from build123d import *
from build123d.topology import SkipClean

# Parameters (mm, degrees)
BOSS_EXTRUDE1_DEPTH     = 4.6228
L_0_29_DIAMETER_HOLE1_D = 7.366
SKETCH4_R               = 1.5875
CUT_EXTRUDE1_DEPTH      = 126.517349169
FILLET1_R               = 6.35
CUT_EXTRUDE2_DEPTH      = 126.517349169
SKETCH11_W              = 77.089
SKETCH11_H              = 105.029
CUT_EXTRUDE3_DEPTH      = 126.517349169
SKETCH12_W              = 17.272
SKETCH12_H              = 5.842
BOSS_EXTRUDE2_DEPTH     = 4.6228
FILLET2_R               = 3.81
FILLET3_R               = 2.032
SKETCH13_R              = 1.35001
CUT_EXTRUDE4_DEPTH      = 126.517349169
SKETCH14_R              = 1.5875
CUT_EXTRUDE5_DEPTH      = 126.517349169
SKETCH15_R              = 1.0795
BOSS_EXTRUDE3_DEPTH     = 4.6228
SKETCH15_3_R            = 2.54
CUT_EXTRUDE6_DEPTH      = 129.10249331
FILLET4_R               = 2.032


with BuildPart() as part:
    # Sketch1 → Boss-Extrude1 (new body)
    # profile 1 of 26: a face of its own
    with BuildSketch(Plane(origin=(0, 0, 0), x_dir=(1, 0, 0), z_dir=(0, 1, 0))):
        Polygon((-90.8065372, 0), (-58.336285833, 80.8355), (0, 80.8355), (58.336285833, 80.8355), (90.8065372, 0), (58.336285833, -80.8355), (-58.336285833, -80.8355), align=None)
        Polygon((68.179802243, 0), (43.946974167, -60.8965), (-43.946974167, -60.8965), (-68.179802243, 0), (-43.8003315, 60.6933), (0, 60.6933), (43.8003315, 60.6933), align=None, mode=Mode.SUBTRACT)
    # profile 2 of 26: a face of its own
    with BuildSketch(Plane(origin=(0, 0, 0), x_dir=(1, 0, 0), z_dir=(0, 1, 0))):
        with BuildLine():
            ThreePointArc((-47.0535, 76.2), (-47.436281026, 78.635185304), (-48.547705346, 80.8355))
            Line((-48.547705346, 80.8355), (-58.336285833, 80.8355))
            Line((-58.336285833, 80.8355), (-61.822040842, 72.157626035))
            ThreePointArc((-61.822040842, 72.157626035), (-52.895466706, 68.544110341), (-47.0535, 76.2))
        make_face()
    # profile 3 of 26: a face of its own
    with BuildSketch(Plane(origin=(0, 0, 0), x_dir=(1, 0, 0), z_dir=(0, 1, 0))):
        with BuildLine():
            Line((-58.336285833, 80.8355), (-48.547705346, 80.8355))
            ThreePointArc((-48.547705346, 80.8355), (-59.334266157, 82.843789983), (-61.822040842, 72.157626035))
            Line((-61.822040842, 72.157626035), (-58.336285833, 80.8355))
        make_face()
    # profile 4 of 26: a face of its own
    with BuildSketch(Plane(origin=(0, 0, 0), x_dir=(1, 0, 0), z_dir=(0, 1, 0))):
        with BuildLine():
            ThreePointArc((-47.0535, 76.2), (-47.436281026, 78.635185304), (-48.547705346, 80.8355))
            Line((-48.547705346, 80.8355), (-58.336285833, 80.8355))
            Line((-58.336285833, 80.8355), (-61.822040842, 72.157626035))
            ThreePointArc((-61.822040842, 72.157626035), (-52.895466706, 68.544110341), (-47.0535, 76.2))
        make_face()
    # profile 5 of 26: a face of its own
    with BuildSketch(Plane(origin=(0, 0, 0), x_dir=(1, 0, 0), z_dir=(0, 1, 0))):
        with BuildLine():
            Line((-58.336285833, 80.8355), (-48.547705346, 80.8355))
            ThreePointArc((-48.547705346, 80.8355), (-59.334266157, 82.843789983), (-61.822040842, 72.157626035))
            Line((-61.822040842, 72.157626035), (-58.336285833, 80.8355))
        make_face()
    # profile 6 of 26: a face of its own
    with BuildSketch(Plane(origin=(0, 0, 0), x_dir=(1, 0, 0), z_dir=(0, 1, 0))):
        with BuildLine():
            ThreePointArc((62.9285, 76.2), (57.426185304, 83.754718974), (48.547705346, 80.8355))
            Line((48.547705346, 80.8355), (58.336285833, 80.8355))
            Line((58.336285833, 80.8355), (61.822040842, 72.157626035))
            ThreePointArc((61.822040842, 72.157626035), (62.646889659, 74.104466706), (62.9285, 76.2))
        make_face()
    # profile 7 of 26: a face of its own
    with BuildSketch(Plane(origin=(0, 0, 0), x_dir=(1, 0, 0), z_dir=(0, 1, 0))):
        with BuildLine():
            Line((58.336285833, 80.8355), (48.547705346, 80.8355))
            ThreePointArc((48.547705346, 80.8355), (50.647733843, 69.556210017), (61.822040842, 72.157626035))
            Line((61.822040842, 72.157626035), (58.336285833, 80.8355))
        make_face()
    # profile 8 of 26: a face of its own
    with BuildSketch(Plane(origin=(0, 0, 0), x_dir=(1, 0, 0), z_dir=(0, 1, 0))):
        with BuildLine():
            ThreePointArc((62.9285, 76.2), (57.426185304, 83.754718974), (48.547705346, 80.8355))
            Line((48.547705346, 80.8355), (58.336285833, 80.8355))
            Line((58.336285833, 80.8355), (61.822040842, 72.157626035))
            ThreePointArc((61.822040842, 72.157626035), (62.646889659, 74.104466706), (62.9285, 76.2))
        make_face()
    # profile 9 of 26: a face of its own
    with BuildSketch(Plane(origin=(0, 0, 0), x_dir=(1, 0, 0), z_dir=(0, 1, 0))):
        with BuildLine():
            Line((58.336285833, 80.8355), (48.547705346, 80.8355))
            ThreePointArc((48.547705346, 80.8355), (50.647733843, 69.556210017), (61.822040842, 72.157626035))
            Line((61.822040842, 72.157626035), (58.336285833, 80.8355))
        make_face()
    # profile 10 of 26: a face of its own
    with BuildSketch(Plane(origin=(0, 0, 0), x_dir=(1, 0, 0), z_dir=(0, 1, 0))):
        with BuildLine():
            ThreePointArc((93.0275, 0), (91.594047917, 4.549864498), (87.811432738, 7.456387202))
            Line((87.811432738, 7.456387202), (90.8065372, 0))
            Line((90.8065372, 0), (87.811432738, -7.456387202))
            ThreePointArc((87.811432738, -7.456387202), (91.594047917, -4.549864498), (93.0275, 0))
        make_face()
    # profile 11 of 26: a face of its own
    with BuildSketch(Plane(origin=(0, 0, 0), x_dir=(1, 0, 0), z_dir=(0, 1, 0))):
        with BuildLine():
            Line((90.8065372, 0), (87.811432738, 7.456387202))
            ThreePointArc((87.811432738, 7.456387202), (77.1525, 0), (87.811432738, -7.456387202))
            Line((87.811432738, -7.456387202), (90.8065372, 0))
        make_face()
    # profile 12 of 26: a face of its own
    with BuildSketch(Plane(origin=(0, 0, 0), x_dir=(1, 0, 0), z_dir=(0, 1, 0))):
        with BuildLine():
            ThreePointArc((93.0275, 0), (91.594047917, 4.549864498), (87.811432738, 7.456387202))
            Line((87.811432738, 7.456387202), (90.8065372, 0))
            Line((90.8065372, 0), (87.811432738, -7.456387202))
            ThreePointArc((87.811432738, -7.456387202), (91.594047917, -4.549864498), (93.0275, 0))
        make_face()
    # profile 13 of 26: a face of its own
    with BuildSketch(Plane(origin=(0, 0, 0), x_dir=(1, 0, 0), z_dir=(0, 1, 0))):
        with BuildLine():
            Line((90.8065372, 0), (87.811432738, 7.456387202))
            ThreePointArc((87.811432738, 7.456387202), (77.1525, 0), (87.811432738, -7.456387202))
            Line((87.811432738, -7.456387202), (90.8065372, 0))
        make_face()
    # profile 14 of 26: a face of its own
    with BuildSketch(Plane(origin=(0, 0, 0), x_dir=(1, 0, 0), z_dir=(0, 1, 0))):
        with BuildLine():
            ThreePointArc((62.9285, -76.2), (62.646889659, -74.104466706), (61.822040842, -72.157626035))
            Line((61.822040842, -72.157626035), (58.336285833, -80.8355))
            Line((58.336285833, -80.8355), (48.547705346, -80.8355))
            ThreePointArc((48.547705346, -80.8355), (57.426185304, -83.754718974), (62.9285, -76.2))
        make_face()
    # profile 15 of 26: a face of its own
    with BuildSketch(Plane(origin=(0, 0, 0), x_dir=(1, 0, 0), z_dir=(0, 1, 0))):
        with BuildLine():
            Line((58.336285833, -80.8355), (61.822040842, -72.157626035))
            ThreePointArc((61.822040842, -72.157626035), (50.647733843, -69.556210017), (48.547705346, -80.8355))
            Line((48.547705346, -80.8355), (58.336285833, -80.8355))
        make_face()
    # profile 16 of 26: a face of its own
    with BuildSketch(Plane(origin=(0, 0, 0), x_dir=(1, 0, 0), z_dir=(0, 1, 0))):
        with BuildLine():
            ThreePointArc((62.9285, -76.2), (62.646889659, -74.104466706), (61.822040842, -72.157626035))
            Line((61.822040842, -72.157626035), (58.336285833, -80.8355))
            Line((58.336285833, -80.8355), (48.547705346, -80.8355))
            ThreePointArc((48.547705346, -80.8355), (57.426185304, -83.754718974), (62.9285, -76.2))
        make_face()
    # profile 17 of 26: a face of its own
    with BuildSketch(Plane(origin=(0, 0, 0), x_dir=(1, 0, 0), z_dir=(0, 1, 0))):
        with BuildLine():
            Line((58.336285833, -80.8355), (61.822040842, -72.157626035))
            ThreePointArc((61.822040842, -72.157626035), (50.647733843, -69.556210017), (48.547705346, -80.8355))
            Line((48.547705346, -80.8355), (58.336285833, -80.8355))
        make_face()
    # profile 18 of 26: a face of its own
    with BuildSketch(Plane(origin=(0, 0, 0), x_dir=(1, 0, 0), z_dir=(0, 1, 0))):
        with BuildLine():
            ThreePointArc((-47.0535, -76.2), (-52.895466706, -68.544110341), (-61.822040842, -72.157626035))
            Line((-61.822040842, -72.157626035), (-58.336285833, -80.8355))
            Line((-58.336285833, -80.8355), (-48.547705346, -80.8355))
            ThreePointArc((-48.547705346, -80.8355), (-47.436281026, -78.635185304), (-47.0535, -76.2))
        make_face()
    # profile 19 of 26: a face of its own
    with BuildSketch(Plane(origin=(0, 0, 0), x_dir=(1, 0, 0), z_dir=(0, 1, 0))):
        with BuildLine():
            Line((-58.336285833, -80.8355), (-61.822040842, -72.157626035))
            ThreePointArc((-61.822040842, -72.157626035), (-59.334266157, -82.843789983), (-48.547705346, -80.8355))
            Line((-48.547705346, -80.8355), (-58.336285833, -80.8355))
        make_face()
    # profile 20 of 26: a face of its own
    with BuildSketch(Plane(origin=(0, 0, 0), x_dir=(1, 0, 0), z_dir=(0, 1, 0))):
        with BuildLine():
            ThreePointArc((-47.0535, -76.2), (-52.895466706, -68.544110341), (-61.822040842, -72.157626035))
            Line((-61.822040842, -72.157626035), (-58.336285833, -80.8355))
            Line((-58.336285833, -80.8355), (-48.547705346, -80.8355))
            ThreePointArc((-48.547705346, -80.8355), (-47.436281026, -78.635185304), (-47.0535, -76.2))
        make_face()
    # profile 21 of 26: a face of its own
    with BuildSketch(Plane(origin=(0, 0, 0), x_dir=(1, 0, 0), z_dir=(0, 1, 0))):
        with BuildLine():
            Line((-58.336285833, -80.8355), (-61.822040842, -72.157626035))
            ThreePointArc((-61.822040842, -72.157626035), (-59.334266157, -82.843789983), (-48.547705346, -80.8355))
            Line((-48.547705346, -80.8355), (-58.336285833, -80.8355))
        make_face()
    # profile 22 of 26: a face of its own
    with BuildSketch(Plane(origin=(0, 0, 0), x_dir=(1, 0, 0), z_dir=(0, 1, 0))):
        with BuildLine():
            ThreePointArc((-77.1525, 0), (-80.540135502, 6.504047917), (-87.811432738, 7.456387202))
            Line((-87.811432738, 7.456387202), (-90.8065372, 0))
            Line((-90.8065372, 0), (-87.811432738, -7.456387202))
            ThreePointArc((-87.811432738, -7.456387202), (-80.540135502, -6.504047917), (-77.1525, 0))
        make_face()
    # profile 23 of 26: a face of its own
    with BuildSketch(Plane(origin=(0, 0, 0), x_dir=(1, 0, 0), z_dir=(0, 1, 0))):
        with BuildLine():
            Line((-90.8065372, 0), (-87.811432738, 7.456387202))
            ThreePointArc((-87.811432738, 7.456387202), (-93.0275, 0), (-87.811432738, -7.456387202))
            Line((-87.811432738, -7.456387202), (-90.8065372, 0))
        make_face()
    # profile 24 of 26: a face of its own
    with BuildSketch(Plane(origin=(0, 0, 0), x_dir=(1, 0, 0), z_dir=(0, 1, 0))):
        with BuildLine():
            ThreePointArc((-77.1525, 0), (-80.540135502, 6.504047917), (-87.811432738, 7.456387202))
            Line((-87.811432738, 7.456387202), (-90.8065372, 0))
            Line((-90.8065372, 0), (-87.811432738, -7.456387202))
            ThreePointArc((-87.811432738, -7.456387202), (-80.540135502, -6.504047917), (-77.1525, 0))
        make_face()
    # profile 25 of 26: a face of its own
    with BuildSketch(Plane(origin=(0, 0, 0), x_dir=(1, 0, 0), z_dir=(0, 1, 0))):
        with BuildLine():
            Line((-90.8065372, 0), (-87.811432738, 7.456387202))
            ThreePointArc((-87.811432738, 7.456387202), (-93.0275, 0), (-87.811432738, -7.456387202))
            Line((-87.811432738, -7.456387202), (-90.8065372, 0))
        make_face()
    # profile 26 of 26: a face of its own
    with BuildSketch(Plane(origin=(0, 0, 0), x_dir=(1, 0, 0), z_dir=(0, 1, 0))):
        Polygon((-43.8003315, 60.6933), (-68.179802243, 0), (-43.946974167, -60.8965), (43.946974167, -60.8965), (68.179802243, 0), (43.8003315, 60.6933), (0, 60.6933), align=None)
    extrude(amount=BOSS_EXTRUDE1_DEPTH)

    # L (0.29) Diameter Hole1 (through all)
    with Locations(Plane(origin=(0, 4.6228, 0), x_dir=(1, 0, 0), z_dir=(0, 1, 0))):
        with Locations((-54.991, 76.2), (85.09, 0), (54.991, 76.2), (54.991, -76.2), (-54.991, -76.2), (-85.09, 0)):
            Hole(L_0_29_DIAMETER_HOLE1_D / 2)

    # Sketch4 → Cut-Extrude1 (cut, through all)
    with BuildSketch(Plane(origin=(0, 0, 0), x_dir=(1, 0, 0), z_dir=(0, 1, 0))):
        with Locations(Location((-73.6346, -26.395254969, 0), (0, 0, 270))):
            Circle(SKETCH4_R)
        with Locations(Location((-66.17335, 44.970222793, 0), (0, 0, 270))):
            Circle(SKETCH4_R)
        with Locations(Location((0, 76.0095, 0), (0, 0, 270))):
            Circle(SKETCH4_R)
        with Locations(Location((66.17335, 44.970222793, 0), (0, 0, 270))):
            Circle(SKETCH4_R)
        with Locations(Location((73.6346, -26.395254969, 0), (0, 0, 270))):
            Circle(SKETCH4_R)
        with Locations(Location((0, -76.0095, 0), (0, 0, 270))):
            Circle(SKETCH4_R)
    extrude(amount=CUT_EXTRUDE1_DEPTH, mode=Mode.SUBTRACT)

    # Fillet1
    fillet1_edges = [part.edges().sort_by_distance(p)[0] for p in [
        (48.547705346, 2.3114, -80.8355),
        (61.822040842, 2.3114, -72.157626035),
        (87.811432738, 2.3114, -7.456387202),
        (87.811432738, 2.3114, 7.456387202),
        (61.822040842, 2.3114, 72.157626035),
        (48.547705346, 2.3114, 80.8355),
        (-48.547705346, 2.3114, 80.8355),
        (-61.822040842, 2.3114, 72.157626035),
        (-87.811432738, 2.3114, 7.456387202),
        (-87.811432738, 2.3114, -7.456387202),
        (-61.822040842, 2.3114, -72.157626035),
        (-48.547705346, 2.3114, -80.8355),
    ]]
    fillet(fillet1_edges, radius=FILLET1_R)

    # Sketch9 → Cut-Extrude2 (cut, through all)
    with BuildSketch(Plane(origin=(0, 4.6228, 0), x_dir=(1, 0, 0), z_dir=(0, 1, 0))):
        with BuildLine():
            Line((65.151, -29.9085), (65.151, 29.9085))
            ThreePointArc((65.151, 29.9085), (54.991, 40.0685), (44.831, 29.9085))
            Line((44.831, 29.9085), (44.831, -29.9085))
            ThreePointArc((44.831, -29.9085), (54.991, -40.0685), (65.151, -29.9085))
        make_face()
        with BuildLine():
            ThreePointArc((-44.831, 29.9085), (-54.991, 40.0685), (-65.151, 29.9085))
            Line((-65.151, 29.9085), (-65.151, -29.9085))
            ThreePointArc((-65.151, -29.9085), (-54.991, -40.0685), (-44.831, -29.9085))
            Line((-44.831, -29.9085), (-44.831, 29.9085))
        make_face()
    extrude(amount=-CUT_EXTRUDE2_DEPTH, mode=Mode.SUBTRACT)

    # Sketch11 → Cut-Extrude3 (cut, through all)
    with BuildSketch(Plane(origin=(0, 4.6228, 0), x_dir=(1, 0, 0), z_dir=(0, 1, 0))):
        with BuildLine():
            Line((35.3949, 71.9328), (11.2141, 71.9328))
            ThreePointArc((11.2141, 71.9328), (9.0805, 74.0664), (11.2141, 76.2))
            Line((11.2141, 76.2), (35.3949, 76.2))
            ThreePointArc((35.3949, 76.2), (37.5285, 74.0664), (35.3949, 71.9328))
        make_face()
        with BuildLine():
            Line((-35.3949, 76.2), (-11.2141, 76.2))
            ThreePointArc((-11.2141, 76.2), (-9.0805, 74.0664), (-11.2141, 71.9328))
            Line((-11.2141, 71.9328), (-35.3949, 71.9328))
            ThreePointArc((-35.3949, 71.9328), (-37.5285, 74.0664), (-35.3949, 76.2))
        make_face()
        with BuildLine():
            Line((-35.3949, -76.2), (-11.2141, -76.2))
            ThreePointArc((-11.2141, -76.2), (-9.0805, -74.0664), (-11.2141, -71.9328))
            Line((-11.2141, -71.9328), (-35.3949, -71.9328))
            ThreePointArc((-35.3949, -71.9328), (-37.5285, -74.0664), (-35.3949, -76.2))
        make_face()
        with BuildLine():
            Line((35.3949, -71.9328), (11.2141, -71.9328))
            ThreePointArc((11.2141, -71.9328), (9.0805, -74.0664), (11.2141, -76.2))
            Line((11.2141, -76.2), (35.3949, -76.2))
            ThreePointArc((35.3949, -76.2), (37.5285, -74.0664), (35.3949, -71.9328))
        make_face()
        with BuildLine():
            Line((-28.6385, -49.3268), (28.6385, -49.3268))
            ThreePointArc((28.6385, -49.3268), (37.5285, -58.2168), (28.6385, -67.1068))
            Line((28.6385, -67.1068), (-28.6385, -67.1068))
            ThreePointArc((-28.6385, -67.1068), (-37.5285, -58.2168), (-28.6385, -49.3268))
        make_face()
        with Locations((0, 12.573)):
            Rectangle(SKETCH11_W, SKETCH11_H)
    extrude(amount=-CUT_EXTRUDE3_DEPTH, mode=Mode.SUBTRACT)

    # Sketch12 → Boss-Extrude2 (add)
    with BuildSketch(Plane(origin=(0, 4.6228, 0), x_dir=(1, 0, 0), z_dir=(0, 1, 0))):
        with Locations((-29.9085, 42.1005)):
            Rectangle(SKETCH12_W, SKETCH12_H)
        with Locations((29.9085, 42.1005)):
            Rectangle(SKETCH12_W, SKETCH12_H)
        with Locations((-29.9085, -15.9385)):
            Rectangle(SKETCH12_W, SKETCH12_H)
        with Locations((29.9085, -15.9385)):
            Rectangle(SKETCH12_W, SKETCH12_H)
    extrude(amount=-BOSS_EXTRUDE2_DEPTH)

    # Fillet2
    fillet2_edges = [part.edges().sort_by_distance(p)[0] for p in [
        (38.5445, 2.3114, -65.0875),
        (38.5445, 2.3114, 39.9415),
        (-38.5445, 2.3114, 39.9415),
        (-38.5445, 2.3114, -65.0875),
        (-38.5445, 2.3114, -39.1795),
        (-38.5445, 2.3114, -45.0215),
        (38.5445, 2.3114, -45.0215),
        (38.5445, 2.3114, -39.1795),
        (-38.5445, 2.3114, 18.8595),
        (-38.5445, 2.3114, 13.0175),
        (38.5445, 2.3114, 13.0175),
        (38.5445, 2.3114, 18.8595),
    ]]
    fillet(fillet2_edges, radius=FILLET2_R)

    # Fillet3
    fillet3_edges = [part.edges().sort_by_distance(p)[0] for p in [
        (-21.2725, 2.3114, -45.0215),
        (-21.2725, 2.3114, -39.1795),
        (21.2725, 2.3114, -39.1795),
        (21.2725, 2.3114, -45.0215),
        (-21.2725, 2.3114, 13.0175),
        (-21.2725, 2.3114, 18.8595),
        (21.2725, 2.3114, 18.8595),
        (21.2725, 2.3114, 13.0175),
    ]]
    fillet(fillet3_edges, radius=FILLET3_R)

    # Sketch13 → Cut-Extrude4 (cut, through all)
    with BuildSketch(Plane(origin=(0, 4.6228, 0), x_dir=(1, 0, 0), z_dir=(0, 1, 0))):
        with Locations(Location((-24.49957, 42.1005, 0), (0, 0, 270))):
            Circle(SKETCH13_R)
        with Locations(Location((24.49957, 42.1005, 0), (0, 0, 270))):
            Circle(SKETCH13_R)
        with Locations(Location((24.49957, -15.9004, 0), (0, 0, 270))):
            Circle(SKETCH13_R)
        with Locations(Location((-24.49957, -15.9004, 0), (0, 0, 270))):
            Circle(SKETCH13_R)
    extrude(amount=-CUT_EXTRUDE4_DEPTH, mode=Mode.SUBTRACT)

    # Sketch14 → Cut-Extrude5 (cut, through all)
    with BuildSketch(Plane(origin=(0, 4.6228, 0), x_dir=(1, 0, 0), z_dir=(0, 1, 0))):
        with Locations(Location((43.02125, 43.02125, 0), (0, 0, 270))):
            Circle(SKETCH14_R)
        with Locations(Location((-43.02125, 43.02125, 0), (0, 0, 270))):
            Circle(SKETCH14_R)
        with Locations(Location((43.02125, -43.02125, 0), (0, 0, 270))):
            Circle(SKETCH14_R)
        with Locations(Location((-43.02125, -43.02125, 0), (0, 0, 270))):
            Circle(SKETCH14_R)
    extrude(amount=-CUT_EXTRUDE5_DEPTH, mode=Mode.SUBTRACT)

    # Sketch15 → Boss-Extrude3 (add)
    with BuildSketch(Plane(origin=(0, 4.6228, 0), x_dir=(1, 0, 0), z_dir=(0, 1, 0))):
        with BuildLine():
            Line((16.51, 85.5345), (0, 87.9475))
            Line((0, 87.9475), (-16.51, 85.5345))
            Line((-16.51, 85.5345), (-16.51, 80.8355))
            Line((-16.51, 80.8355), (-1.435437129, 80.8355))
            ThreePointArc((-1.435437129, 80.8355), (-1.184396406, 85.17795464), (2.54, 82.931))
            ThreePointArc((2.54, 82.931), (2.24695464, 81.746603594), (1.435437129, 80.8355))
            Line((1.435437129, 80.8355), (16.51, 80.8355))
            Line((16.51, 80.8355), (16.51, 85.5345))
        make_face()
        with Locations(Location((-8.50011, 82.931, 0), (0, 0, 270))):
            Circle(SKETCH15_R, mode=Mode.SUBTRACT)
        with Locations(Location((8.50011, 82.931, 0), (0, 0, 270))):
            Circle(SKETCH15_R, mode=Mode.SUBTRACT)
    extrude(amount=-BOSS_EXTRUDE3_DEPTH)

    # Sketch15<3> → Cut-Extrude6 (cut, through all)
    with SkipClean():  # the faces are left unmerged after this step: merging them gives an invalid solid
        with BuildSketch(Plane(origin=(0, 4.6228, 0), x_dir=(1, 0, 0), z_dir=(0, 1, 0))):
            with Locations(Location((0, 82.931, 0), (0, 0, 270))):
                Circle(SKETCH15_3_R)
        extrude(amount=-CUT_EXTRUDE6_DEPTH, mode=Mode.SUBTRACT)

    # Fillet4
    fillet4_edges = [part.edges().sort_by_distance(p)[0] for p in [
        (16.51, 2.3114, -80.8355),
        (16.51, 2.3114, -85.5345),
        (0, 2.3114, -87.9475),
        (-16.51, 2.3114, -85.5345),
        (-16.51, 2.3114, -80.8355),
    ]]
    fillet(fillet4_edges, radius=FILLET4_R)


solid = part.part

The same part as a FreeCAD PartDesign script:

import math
import FreeCAD as App
import Part
import Sketcher

V = App.Vector
Q = App.Units.Quantity


def edges_at(feature, points):
    """Names of the edges that pass closest to the given points."""
    edges = feature.Shape.Edges
    near = lambda p: min(range(len(edges)), key=lambda i: edges[i].distToShape(Part.Vertex(*p))[0])
    return sorted({f"Edge{near(p) + 1}" for p in points})

doc = App.newDocument("Part")
body = doc.addObject("PartDesign::Body", "Body")

# Sketch on XZ plane
sketch1 = body.newObject("Sketcher::SketchObject", "Sketch")
sketch1.AttachmentSupport = (doc.getObject("XZ_Plane"), [""])
sketch1.MapMode = "FlatFace"
sketch1.addGeometry([
    Part.ArcOfCircle(Part.Circle(V(-85.1, 0, 0), V(0, 0, 1), 7.9), math.radians(110), math.radians(250)),  # 0
    Part.LineSegment(V(-87.8, 7.5, 0), V(-61.8, 72.2, 0)),  # 1
    Part.ArcOfCircle(Part.Circle(V(-55, 76.2, 0), V(0, 0, 1), 7.9), math.radians(36), math.radians(211)),  # 2
    Part.LineSegment(V(-48.5, 80.8, 0), V(48.5, 80.8, 0)),  # 3
    Part.ArcOfCircle(Part.Circle(V(55, 76.2, 0), V(0, 0, 1), 7.9), math.radians(0), math.radians(144)),  # 4
    Part.ArcOfCircle(Part.Circle(V(55, 76.2, 0), V(0, 0, 1), 7.9), math.radians(-31), math.radians(0)),  # 5
    Part.LineSegment(V(61.8, 72.2, 0), V(87.8, 7.5, 0)),  # 6
    Part.ArcOfCircle(Part.Circle(V(85.1, 0, 0), V(0, 0, 1), 7.9), math.radians(0), math.radians(70)),  # 7
    Part.ArcOfCircle(Part.Circle(V(85.1, 0, 0), V(0, 0, 1), 7.9), math.radians(-70), math.radians(0)),  # 8
    Part.LineSegment(V(87.8, -7.5, 0), V(61.8, -72.2, 0)),  # 9
    Part.ArcOfCircle(Part.Circle(V(55, -76.2, 0), V(0, 0, 1), 7.9), math.radians(0), math.radians(31)),  # 10
    Part.ArcOfCircle(Part.Circle(V(55, -76.2, 0), V(0, 0, 1), 7.9), math.radians(-144), math.radians(0)),  # 11
    Part.LineSegment(V(48.5, -80.8, 0), V(-48.5, -80.8, 0)),  # 12
    Part.ArcOfCircle(Part.Circle(V(-55, -76.2, 0), V(0, 0, 1), 7.9), math.radians(149), math.radians(324)),  # 13
    Part.LineSegment(V(-61.8, -72.2, 0), V(-87.8, -7.5, 0)),  # 14
], False)
sketch1.addConstraint([
    Sketcher.Constraint("Coincident", 0, 1, 1, 1),
    Sketcher.Constraint("Coincident", 1, 2, 2, 2),
    Sketcher.Constraint("Coincident", 2, 1, 3, 1),
    Sketcher.Constraint("Coincident", 3, 2, 4, 2),
    Sketcher.Constraint("Tangent", 4, 1, 5, 2),
    Sketcher.Constraint("Coincident", 5, 1, 6, 1),
    Sketcher.Constraint("Coincident", 6, 2, 7, 2),
    Sketcher.Constraint("Tangent", 7, 1, 8, 2),
    Sketcher.Constraint("Coincident", 8, 1, 9, 1),
    Sketcher.Constraint("Coincident", 9, 2, 10, 2),
    Sketcher.Constraint("Tangent", 10, 1, 11, 2),
    Sketcher.Constraint("Coincident", 11, 1, 12, 1),
    Sketcher.Constraint("Coincident", 12, 2, 13, 2),
    Sketcher.Constraint("Coincident", 13, 1, 14, 1),
    Sketcher.Constraint("Coincident", 14, 2, 0, 2),
    Sketcher.Constraint("Horizontal", 3),
    Sketcher.Constraint("Horizontal", 12),
    Sketcher.Constraint("Equal", 0, 2),
    Sketcher.Constraint("Equal", 2, 4),
    Sketcher.Constraint("Equal", 4, 5),
    Sketcher.Constraint("Equal", 5, 7),
    Sketcher.Constraint("Equal", 7, 8),
    Sketcher.Constraint("Equal", 8, 10),
    Sketcher.Constraint("Equal", 10, 11),
    Sketcher.Constraint("Equal", 11, 13),
    Sketcher.Constraint("Symmetric", 0, 3, 7, 3, -1, 1),
    Sketcher.Constraint("Symmetric", 2, 3, 10, 3, -1, 1),
    Sketcher.Constraint("Symmetric", 4, 3, 13, 3, -1, 1),
    Sketcher.Constraint("Symmetric", 2, 3, 4, 3, -2),
    Sketcher.Constraint("Symmetric", 0, 1, 6, 2, -2),
    Sketcher.Constraint("PointOnObject", 7, 1, -1),
    Sketcher.Constraint("Parallel", 1, 9),
    Sketcher.Constraint("Parallel", 6, 14),
    Sketcher.Constraint("Horizontal", 5, 3, 4, 1),
    Sketcher.Constraint("Horizontal", 1, 2, 5, 1),
    Sketcher.Constraint("Horizontal", 13, 3, 10, 1),
    Sketcher.Constraint("Horizontal", 9, 2, 13, 1),
    Sketcher.Constraint("Vertical", 6, 2, 8, 1),
    Sketcher.Constraint("Vertical", 3, 2, 11, 1),
    Sketcher.Constraint("DistanceY", -1, 1, 2, 3, Q("3 in")),
    Sketcher.Constraint("Radius", 0, Q("0.3125 in")),
    Sketcher.Constraint("DistanceX", 0, 3, 7, 3, Q("6.7 in")),
    Sketcher.Constraint("DistanceX", 2, 3, 4, 3, Q("4.33 in")),
    Sketcher.Constraint("DistanceY", -1, 1, 2, 1, Q("3.1825 in")),
    Sketcher.Constraint("DistanceX", 1, 2, -1, 1, Q("61.822041 mm")),
    Sketcher.Constraint("DistanceX", 0, 1, 1, 2, Q("25.989392 mm")),
])
pad1 = body.newObject("PartDesign::Pad", "Pad")
pad1.Profile = sketch1
pad1.Length = Q("0.182 in")
pad1.Reversed = True

# Sketch on XZ plane
sketch2 = body.newObject("Sketcher::SketchObject", "Sketch001")
sketch2.AttachmentSupport = (doc.getObject("XZ_Plane"), [""])
sketch2.MapMode = "FlatFace"
sketch2.AttachmentOffset = App.Placement(V(0, 0, -0.182 * 25.4), App.Rotation())
sketch2.addGeometry([
    Part.Circle(V(-55, -76.2, 0), V(0, 0, 1), 3.7),  # 0
    Part.Circle(V(85.1, 0, 0), V(0, 0, 1), 3.7),  # 1
    Part.Circle(V(55, -76.2, 0), V(0, 0, 1), 3.7),  # 2
    Part.Circle(V(55, 76.2, 0), V(0, 0, 1), 3.7),  # 3
    Part.Circle(V(-55, 76.2, 0), V(0, 0, 1), 3.7),  # 4
    Part.Circle(V(-85.1, 0, 0), V(0, 0, 1), 3.7),  # 5
], False)
sketch2.addConstraint([
    Sketcher.Constraint("Equal", 0, 1),
    Sketcher.Constraint("Equal", 1, 2),
    Sketcher.Constraint("Equal", 2, 3),
    Sketcher.Constraint("Equal", 3, 4),
    Sketcher.Constraint("Equal", 4, 5),
    Sketcher.Constraint("Symmetric", 0, 3, 3, 3, -1, 1),
    Sketcher.Constraint("Symmetric", 2, 3, 4, 3, -1, 1),
    Sketcher.Constraint("Symmetric", 1, 3, 5, 3, -1, 1),
    Sketcher.Constraint("Symmetric", 0, 3, 2, 3, -2),
    Sketcher.Constraint("PointOnObject", 1, 3, -1),
    Sketcher.Constraint("Diameter", 0, Q("0.29 in")),
    Sketcher.Constraint("DistanceY", 0, 3, -1, 1, Q("3 in")),
    Sketcher.Constraint("DistanceX", 5, 3, 1, 3, Q("6.7 in")),
    Sketcher.Constraint("DistanceX", 0, 3, 2, 3, Q("4.33 in")),
])
doc.recompute()
hole = body.newObject("PartDesign::Hole", "Hole")
hole.Profile = sketch2
hole.ThreadType = "None"
hole.Diameter = Q("0.29 in")
hole.DepthType = "ThroughAll"
hole.Reversed = True

# Sketch on XZ plane
sketch3 = body.newObject("Sketcher::SketchObject", "Sketch002")
sketch3.AttachmentSupport = (doc.getObject("XZ_Plane"), [""])
sketch3.MapMode = "FlatFace"
sketch3.addGeometry([
    Part.Circle(V(-73.6, 26.4, 0), V(0, 0, 1), 1.6),  # 0
    Part.Circle(V(-66.2, -45, 0), V(0, 0, 1), 1.6),  # 1
    Part.Circle(V(0, -76, 0), V(0, 0, 1), 1.6),  # 2
    Part.Circle(V(66.2, -45, 0), V(0, 0, 1), 1.6),  # 3
    Part.Circle(V(73.6, 26.4, 0), V(0, 0, 1), 1.6),  # 4
    Part.Circle(V(0, 76, 0), V(0, 0, 1), 1.6),  # 5
], False)
sketch3.addConstraint([
    Sketcher.Constraint("Equal", 0, 1),
    Sketcher.Constraint("Equal", 1, 2),
    Sketcher.Constraint("Equal", 2, 3),
    Sketcher.Constraint("Equal", 3, 4),
    Sketcher.Constraint("Equal", 4, 5),
    Sketcher.Constraint("Symmetric", 2, 3, 5, 3, -1, 1),
    Sketcher.Constraint("Symmetric", 1, 3, 3, 3, -2),
    Sketcher.Constraint("Symmetric", 0, 3, 4, 3, -2),
    Sketcher.Constraint("PointOnObject", 2, 3, -2),
    Sketcher.Constraint("Diameter", 0, Q("0.125 in")),
    Sketcher.Constraint("DistanceX", 0, 3, -1, 1, Q("2.899 in")),
    Sketcher.Constraint("DistanceY", 2, 3, 5, 3, Q("5.985 in")),
    Sketcher.Constraint("DistanceX", 1, 3, 3, 3, Q("5.2105 in")),
    Sketcher.Constraint("DistanceY", -1, 1, 0, 3, Q("26.395255 mm")),
    Sketcher.Constraint("DistanceY", 1, 3, -1, 1, Q("44.970223 mm")),
])
pocket1 = body.newObject("PartDesign::Pocket", "Pocket")
pocket1.Profile = sketch3
pocket1.Type = "ThroughAll"
doc.recompute()

fillet = body.newObject("PartDesign::Fillet", "Fillet")
fillet.Base = (pocket1, edges_at(pocket1, [
    (48.548, 2.311, -80.835),
    (61.822, 2.311, -72.158),
    (87.811, 2.311, -7.456),
    (87.811, 2.311, 7.456),
    (61.822, 2.311, 72.158),
    (48.548, 2.311, 80.835),
    (-48.548, 2.311, 80.835),
    (-61.822, 2.311, 72.158),
    (-87.811, 2.311, 7.456),
    (-87.811, 2.311, -7.456),
    (-61.822, 2.311, -72.158),
    (-48.548, 2.311, -80.835),
]))
fillet.Radius = Q("0.25 in")

# Sketch on XZ plane
sketch4 = body.newObject("Sketcher::SketchObject", "Sketch003")
sketch4.AttachmentSupport = (doc.getObject("XZ_Plane"), [""])
sketch4.MapMode = "FlatFace"
sketch4.AttachmentOffset = App.Placement(V(0, 0, -0.182 * 25.4), App.Rotation())
sketch4.addGeometry([
    Part.LineSegment(V(65, 30, 0), V(65, -30, 0)),  # 0
    Part.ArcOfCircle(Part.Circle(V(55, -30, 0), V(0, 0, 1), 10), math.radians(180), math.radians(360)),  # 1
    Part.LineSegment(V(45, -30, 0), V(45, 30, 0)),  # 2
    Part.ArcOfCircle(Part.Circle(V(55, 30, 0), V(0, 0, 1), 10), math.radians(0), math.radians(180)),  # 3
    Part.ArcOfCircle(Part.Circle(V(-55, -30, 0), V(0, 0, 1), 10), math.radians(180), math.radians(360)),  # 4
    Part.LineSegment(V(-65, -30, 0), V(-65, 30, 0)),  # 5
    Part.ArcOfCircle(Part.Circle(V(-55, 30, 0), V(0, 0, 1), 10), math.radians(0), math.radians(180)),  # 6
    Part.LineSegment(V(-45, 30, 0), V(-45, -30, 0)),  # 7
], False)
sketch4.addConstraint([
    Sketcher.Constraint("Tangent", 0, 2, 1, 2),
    Sketcher.Constraint("Tangent", 1, 1, 2, 1),
    Sketcher.Constraint("Tangent", 2, 2, 3, 2),
    Sketcher.Constraint("Tangent", 3, 1, 0, 1),
    Sketcher.Constraint("Tangent", 4, 1, 5, 1),
    Sketcher.Constraint("Tangent", 5, 2, 6, 2),
    Sketcher.Constraint("Tangent", 6, 1, 7, 1),
    Sketcher.Constraint("Tangent", 7, 2, 4, 2),
    Sketcher.Constraint("Vertical", 0),
    Sketcher.Constraint("Vertical", 2),
    Sketcher.Constraint("Vertical", 5),
    Sketcher.Constraint("Vertical", 7),
    Sketcher.Constraint("Equal", 3, 4),
    Sketcher.Constraint("Symmetric", 3, 3, 4, 3, -1, 1),
    Sketcher.Constraint("Horizontal", 1, 3, 4, 3),
    Sketcher.Constraint("Horizontal", 3, 3, 6, 3),
    Sketcher.Constraint("Radius", 1, Q("0.4 in")),
    Sketcher.Constraint("DistanceY", 0, 2, 0, 1, Q("2.355 in")),
    Sketcher.Constraint("DistanceX", 4, 3, 1, 3, Q("4.33 in")),
])
pocket2 = body.newObject("PartDesign::Pocket", "Pocket001")
pocket2.Profile = sketch4
pocket2.Type = "ThroughAll"
pocket2.Reversed = True

# Sketch on XZ plane
sketch5 = body.newObject("Sketcher::SketchObject", "Sketch004")
sketch5.AttachmentSupport = (doc.getObject("XZ_Plane"), [""])
sketch5.MapMode = "FlatFace"
sketch5.AttachmentOffset = App.Placement(V(0, 0, -0.182 * 25.4), App.Rotation())
sketch5.addGeometry([
    Part.LineSegment(V(11.2, -71.9, 0), V(35.4, -71.9, 0)),  # 0
    Part.ArcOfCircle(Part.Circle(V(35.4, -74.1, 0), V(0, 0, 1), 2.1), math.radians(-90), math.radians(90)),  # 1
    Part.LineSegment(V(35.4, -76.2, 0), V(11.2, -76.2, 0)),  # 2
    Part.ArcOfCircle(Part.Circle(V(11.2, -74.1, 0), V(0, 0, 1), 2.1), math.radians(90), math.radians(270)),  # 3
    Part.LineSegment(V(-11.2, -76.2, 0), V(-35.4, -76.2, 0)),  # 4
    Part.ArcOfCircle(Part.Circle(V(-35.4, -74.1, 0), V(0, 0, 1), 2.1), math.radians(90), math.radians(270)),  # 5
    Part.LineSegment(V(-35.4, -71.9, 0), V(-11.2, -71.9, 0)),  # 6
    Part.ArcOfCircle(Part.Circle(V(-11.2, -74.1, 0), V(0, 0, 1), 2.1), math.radians(-90), math.radians(90)),  # 7
    Part.LineSegment(V(-35.4, 76.2, 0), V(-11.2, 76.2, 0)),  # 8
    Part.ArcOfCircle(Part.Circle(V(-11.2, 74.1, 0), V(0, 0, 1), 2.1), math.radians(-90), math.radians(90)),  # 9
    Part.LineSegment(V(-11.2, 71.9, 0), V(-35.4, 71.9, 0)),  # 10
    Part.ArcOfCircle(Part.Circle(V(-35.4, 74.1, 0), V(0, 0, 1), 2.1), math.radians(90), math.radians(270)),  # 11
    Part.LineSegment(V(35.4, 71.9, 0), V(11.2, 71.9, 0)),  # 12
    Part.ArcOfCircle(Part.Circle(V(11.2, 74.1, 0), V(0, 0, 1), 2.1), math.radians(90), math.radians(270)),  # 13
    Part.LineSegment(V(11.2, 76.2, 0), V(35.4, 76.2, 0)),  # 14
    Part.ArcOfCircle(Part.Circle(V(35.4, 74.1, 0), V(0, 0, 1), 2.1), math.radians(-90), math.radians(90)),  # 15
    Part.LineSegment(V(28.6, 49.3, 0), V(-28.6, 49.3, 0)),  # 16
    Part.ArcOfCircle(Part.Circle(V(-28.6, 58.2, 0), V(0, 0, 1), 8.9), math.radians(90), math.radians(270)),  # 17
    Part.LineSegment(V(-28.6, 67.1, 0), V(28.6, 67.1, 0)),  # 18
    Part.ArcOfCircle(Part.Circle(V(28.6, 58.2, 0), V(0, 0, 1), 8.9), math.radians(-90), math.radians(90)),  # 19
    Part.LineSegment(V(-38.5, -65.1, 0), V(-38.5, 39.9, 0)),  # 20
    Part.LineSegment(V(-38.5, 39.9, 0), V(38.5, 39.9, 0)),  # 21
    Part.LineSegment(V(38.5, 39.9, 0), V(38.5, -65.1, 0)),  # 22
    Part.LineSegment(V(38.5, -65.1, 0), V(-38.5, -65.1, 0)),  # 23
], False)
sketch5.addConstraint([
    Sketcher.Constraint("Tangent", 0, 2, 1, 2),
    Sketcher.Constraint("Tangent", 1, 1, 2, 1),
    Sketcher.Constraint("Tangent", 2, 2, 3, 2),
    Sketcher.Constraint("Tangent", 3, 1, 0, 1),
    Sketcher.Constraint("Tangent", 4, 2, 5, 2),
    Sketcher.Constraint("Tangent", 5, 1, 6, 1),
    Sketcher.Constraint("Tangent", 6, 2, 7, 2),
    Sketcher.Constraint("Tangent", 7, 1, 4, 1),
    Sketcher.Constraint("Tangent", 8, 2, 9, 2),
    Sketcher.Constraint("Tangent", 9, 1, 10, 1),
    Sketcher.Constraint("Tangent", 10, 2, 11, 2),
    Sketcher.Constraint("Tangent", 11, 1, 8, 1),
    Sketcher.Constraint("Tangent", 12, 2, 13, 2),
    Sketcher.Constraint("Tangent", 13, 1, 14, 1),
    Sketcher.Constraint("Tangent", 14, 2, 15, 2),
    Sketcher.Constraint("Tangent", 15, 1, 12, 1),
    Sketcher.Constraint("Tangent", 16, 2, 17, 2),
    Sketcher.Constraint("Tangent", 17, 1, 18, 1),
    Sketcher.Constraint("Tangent", 18, 2, 19, 2),
    Sketcher.Constraint("Tangent", 19, 1, 16, 1),
    Sketcher.Constraint("Coincident", 20, 2, 21, 1),
    Sketcher.Constraint("Coincident", 21, 2, 22, 1),
    Sketcher.Constraint("Coincident", 22, 2, 23, 1),
    Sketcher.Constraint("Coincident", 23, 2, 20, 1),
    Sketcher.Constraint("Horizontal", 0),
    Sketcher.Constraint("Horizontal", 2),
    Sketcher.Constraint("Horizontal", 4),
    Sketcher.Constraint("Horizontal", 6),
    Sketcher.Constraint("Horizontal", 8),
    Sketcher.Constraint("Horizontal", 10),
    Sketcher.Constraint("Horizontal", 12),
    Sketcher.Constraint("Horizontal", 14),
    Sketcher.Constraint("Horizontal", 16),
    Sketcher.Constraint("Horizontal", 18),
    Sketcher.Constraint("Vertical", 20),
    Sketcher.Constraint("Horizontal", 21),
    Sketcher.Constraint("Vertical", 22),
    Sketcher.Constraint("Horizontal", 23),
    Sketcher.Constraint("Equal", 3, 5),
    Sketcher.Constraint("Equal", 7, 9),
    Sketcher.Constraint("Equal", 11, 13),
    Sketcher.Constraint("Symmetric", 3, 3, 9, 3, -1, 1),
    Sketcher.Constraint("Symmetric", 7, 3, 13, 3, -1, 1),
    Sketcher.Constraint("Symmetric", 1, 3, 5, 3, -2),
    Sketcher.Constraint("Vertical", 7, 3, 9, 3),
    Sketcher.Constraint("Vertical", 5, 3, 11, 3),
    Sketcher.Constraint("Vertical", 1, 3, 15, 3),
    Sketcher.Constraint("Radius", 17, Q("0.35 in")),
    Sketcher.Constraint("DistanceY", 1, 1, -1, 1, Q("3 in")),
    Sketcher.Constraint("Radius", 1, Q("0.084 in")),
    Sketcher.Constraint("DistanceX", 0, 1, 0, 2, Q("0.952 in")),
    Sketcher.Constraint("DistanceX", 16, 2, 16, 1, Q("2.255 in")),
    Sketcher.Constraint("DistanceX", 21, 1, 21, 2, Q("3.035 in")),
    Sketcher.Constraint("DistanceY", 20, 1, 20, 2, Q("4.135 in")),
    Sketcher.Constraint("DistanceY", 17, 3, 9, 1, Q("0.54 in")),
    Sketcher.Constraint("DistanceX", 20, 2, 16, 2, Q("0.39 in")),
    Sketcher.Constraint("DistanceY", 22, 2, -1, 1, Q("2.5625 in")),
    Sketcher.Constraint("DistanceX", 5, 3, 3, 3, Q("1.835 in")),
    Sketcher.Constraint("DistanceX", 11, 3, 17, 3, Q("0.266 in")),
])
pocket3 = body.newObject("PartDesign::Pocket", "Pocket002")
pocket3.Profile = sketch5
pocket3.Type = "ThroughAll"
pocket3.Reversed = True

# Sketch on XZ plane
sketch6 = body.newObject("Sketcher::SketchObject", "Sketch005")
sketch6.AttachmentSupport = (doc.getObject("XZ_Plane"), [""])
sketch6.MapMode = "FlatFace"
sketch6.AttachmentOffset = App.Placement(V(0, 0, -0.182 * 25.4), App.Rotation())
sketch6.addGeometry([
    Part.LineSegment(V(-39, -45, 0), V(-39, -39, 0)),  # 0
    Part.LineSegment(V(-39, -39, 0), V(-21, -39, 0)),  # 1
    Part.LineSegment(V(-21, -39, 0), V(-21, -45, 0)),  # 2
    Part.LineSegment(V(-21, -45, 0), V(-39, -45, 0)),  # 3
    Part.LineSegment(V(21, -45, 0), V(21, -39, 0)),  # 4
    Part.LineSegment(V(21, -39, 0), V(39, -39, 0)),  # 5
    Part.LineSegment(V(39, -39, 0), V(39, -45, 0)),  # 6
    Part.LineSegment(V(39, -45, 0), V(21, -45, 0)),  # 7
    Part.LineSegment(V(-39, 13, 0), V(-39, 19, 0)),  # 8
    Part.LineSegment(V(-39, 19, 0), V(-21, 19, 0)),  # 9
    Part.LineSegment(V(-21, 19, 0), V(-21, 13, 0)),  # 10
    Part.LineSegment(V(-21, 13, 0), V(-39, 13, 0)),  # 11
    Part.LineSegment(V(21, 13, 0), V(21, 19, 0)),  # 12
    Part.LineSegment(V(21, 19, 0), V(39, 19, 0)),  # 13
    Part.LineSegment(V(39, 19, 0), V(39, 13, 0)),  # 14
    Part.LineSegment(V(39, 13, 0), V(21, 13, 0)),  # 15
], False)
sketch6.addConstraint([
    Sketcher.Constraint("Coincident", 0, 2, 1, 1),
    Sketcher.Constraint("Coincident", 1, 2, 2, 1),
    Sketcher.Constraint("Coincident", 2, 2, 3, 1),
    Sketcher.Constraint("Coincident", 3, 2, 0, 1),
    Sketcher.Constraint("Coincident", 4, 2, 5, 1),
    Sketcher.Constraint("Coincident", 5, 2, 6, 1),
    Sketcher.Constraint("Coincident", 6, 2, 7, 1),
    Sketcher.Constraint("Coincident", 7, 2, 4, 1),
    Sketcher.Constraint("Coincident", 8, 2, 9, 1),
    Sketcher.Constraint("Coincident", 9, 2, 10, 1),
    Sketcher.Constraint("Coincident", 10, 2, 11, 1),
    Sketcher.Constraint("Coincident", 11, 2, 8, 1),
    Sketcher.Constraint("Coincident", 12, 2, 13, 1),
    Sketcher.Constraint("Coincident", 13, 2, 14, 1),
    Sketcher.Constraint("Coincident", 14, 2, 15, 1),
    Sketcher.Constraint("Coincident", 15, 2, 12, 1),
    Sketcher.Constraint("Vertical", 0),
    Sketcher.Constraint("Horizontal", 1),
    Sketcher.Constraint("Vertical", 2),
    Sketcher.Constraint("Horizontal", 3),
    Sketcher.Constraint("Vertical", 4),
    Sketcher.Constraint("Horizontal", 5),
    Sketcher.Constraint("Vertical", 6),
    Sketcher.Constraint("Horizontal", 7),
    Sketcher.Constraint("Vertical", 8),
    Sketcher.Constraint("Horizontal", 9),
    Sketcher.Constraint("Vertical", 10),
    Sketcher.Constraint("Horizontal", 11),
    Sketcher.Constraint("Vertical", 12),
    Sketcher.Constraint("Horizontal", 13),
    Sketcher.Constraint("Vertical", 14),
    Sketcher.Constraint("Horizontal", 15),
    Sketcher.Constraint("Symmetric", 1, 2, 4, 2, -2),
    Sketcher.Constraint("Symmetric", 3, 2, 6, 2, -2),
    Sketcher.Constraint("Symmetric", 9, 2, 12, 2, -2),
    Sketcher.Constraint("Symmetric", 11, 2, 14, 2, -2),
    Sketcher.Constraint("Vertical", 3, 2, 8, 2),
    Sketcher.Constraint("Vertical", 2, 2, 9, 2),
    Sketcher.Constraint("Equal", 6, 8),
    Sketcher.Constraint("DistanceX", 1, 1, 1, 2, Q("0.68 in")),
    Sketcher.Constraint("DistanceY", 0, 1, 0, 2, Q("0.23 in")),
    Sketcher.Constraint("DistanceX", 1, 2, 4, 2, Q("1.675 in")),
    Sketcher.Constraint("DistanceY", 0, 2, 8, 2, Q("2.285 in")),
    Sketcher.Constraint("DistanceY", 0, 2, -1, 1, Q("1.5425 in")),
])
pad2 = body.newObject("PartDesign::Pad", "Pad001")
pad2.Profile = sketch6
pad2.Length = Q("0.182 in")
doc.recompute()

fillet2 = body.newObject("PartDesign::Fillet", "Fillet001")
fillet2.Base = (pad2, edges_at(pad2, [
    (38.544, 2.311, -65.088),
    (38.544, 2.311, 39.941),
    (-38.544, 2.311, 39.941),
    (-38.544, 2.311, -65.088),
    (-38.544, 2.311, -39.179),
    (-38.544, 2.311, -45.022),
    (38.544, 2.311, -45.022),
    (38.544, 2.311, -39.179),
    (-38.544, 2.311, 18.86),
    (-38.544, 2.311, 13.018),
    (38.544, 2.311, 13.018),
    (38.544, 2.311, 18.86),
]))
fillet2.Radius = Q("0.15 in")
doc.recompute()

fillet3 = body.newObject("PartDesign::Fillet", "Fillet002")
fillet3.Base = (fillet2, edges_at(fillet2, [
    (-21.273, 2.311, -45.022),
    (-21.273, 2.311, -39.179),
    (21.273, 2.311, -39.179),
    (21.273, 2.311, -45.022),
    (-21.273, 2.311, 13.018),
    (-21.273, 2.311, 18.86),
    (21.273, 2.311, 18.86),
    (21.273, 2.311, 13.018),
]))
fillet3.Radius = Q("0.08 in")

# Sketch on XZ plane
sketch7 = body.newObject("Sketcher::SketchObject", "Sketch006")
sketch7.AttachmentSupport = (doc.getObject("XZ_Plane"), [""])
sketch7.MapMode = "FlatFace"
sketch7.AttachmentOffset = App.Placement(V(0, 0, -0.182 * 25.4), App.Rotation())
sketch7.addGeometry([
    Part.Circle(V(-24.5, -42.1, 0), V(0, 0, 1), 1.4),
    Part.Circle(V(24.5, -42.1, 0), V(0, 0, 1), 1.4),
    Part.Circle(V(24.5, 15.9, 0), V(0, 0, 1), 1.4),
    Part.Circle(V(-24.5, 15.9, 0), V(0, 0, 1), 1.4),
], False)
sketch7.addConstraint([
    Sketcher.Constraint("Equal", 0, 1),
    Sketcher.Constraint("Equal", 1, 2),
    Sketcher.Constraint("Equal", 2, 3),
    Sketcher.Constraint("Symmetric", 0, 3, 1, 3, -2),
    Sketcher.Constraint("Symmetric", 2, 3, 3, 3, -2),
    Sketcher.Constraint("Vertical", 1, 3, 2, 3),
    Sketcher.Constraint("Diameter", 0, Q("0.1063 in")),
    Sketcher.Constraint("DistanceY", -1, 1, 2, 3, Q("0.626 in")),
    Sketcher.Constraint("DistanceY", 0, 3, -1, 1, Q("1.6575 in")),
    Sketcher.Constraint("DistanceX", 0, 3, 1, 3, Q("1.9291 in")),
])
pocket4 = body.newObject("PartDesign::Pocket", "Pocket003")
pocket4.Profile = sketch7
pocket4.Type = "ThroughAll"
pocket4.Reversed = True

# Sketch on XZ plane
sketch8 = body.newObject("Sketcher::SketchObject", "Sketch007")
sketch8.AttachmentSupport = (doc.getObject("XZ_Plane"), [""])
sketch8.MapMode = "FlatFace"
sketch8.AttachmentOffset = App.Placement(V(0, 0, -0.182 * 25.4), App.Rotation())
sketch8.addGeometry([
    Part.Circle(V(43, -43, 0), V(0, 0, 1), 1.6),
    Part.Circle(V(-43, -43, 0), V(0, 0, 1), 1.6),
    Part.Circle(V(43, 43, 0), V(0, 0, 1), 1.6),
    Part.Circle(V(-43, 43, 0), V(0, 0, 1), 1.6),
], False)
sketch8.addConstraint([
    Sketcher.Constraint("Equal", 0, 1),
    Sketcher.Constraint("Equal", 1, 2),
    Sketcher.Constraint("Equal", 2, 3),
    Sketcher.Constraint("Symmetric", 1, 3, 2, 3, -1, 1),
    Sketcher.Constraint("Symmetric", 0, 3, 3, 3, -1, 1),
    Sketcher.Constraint("Symmetric", 0, 3, 1, 3, -2),
    Sketcher.Constraint("Diameter", 0, Q("0.125 in")),
    Sketcher.Constraint("DistanceX", 1, 3, 0, 3, Q("3.3875 in")),
    Sketcher.Constraint("DistanceY", 0, 3, 2, 3, Q("3.3875 in")),
])
pocket5 = body.newObject("PartDesign::Pocket", "Pocket004")
pocket5.Profile = sketch8
pocket5.Type = "ThroughAll"
pocket5.Reversed = True

# Sketch on XZ plane
sketch9 = body.newObject("Sketcher::SketchObject", "Sketch008")
sketch9.AttachmentSupport = (doc.getObject("XZ_Plane"), [""])
sketch9.MapMode = "FlatFace"
sketch9.AttachmentOffset = App.Placement(V(0, 0, -0.182 * 25.4), App.Rotation())
sketch9.addGeometry([
    Part.LineSegment(V(16.5, -85.5, 0), V(0, -87.9, 0)),  # 0
    Part.LineSegment(V(0, -87.9, 0), V(-16.5, -85.5, 0)),  # 1
    Part.LineSegment(V(-16.5, -85.5, 0), V(-16.5, -80.8, 0)),  # 2
    Part.LineSegment(V(-16.5, -80.8, 0), V(-1.4, -80.8, 0)),  # 3
    Part.ArcOfCircle(Part.Circle(V(0, -82.9, 0), V(0, 0, 1), 2.5), math.radians(124), math.radians(360)),  # 4
    Part.ArcOfCircle(Part.Circle(V(0, -82.9, 0), V(0, 0, 1), 2.5), math.radians(0), math.radians(56)),  # 5
    Part.LineSegment(V(1.4, -80.8, 0), V(16.5, -80.8, 0)),  # 6
    Part.LineSegment(V(16.5, -80.8, 0), V(16.5, -85.5, 0)),  # 7
    Part.Circle(V(-8.5, -82.9, 0), V(0, 0, 1), 1.1),  # 8
    Part.Circle(V(8.5, -82.9, 0), V(0, 0, 1), 1.1),  # 9
], False)
sketch9.addConstraint([
    Sketcher.Constraint("Coincident", 0, 2, 1, 1),
    Sketcher.Constraint("Coincident", 1, 2, 2, 1),
    Sketcher.Constraint("Coincident", 2, 2, 3, 1),
    Sketcher.Constraint("Coincident", 3, 2, 4, 1),
    Sketcher.Constraint("Tangent", 4, 2, 5, 1),
    Sketcher.Constraint("Coincident", 5, 2, 6, 1),
    Sketcher.Constraint("Coincident", 6, 2, 7, 1),
    Sketcher.Constraint("Coincident", 7, 2, 0, 1),
    Sketcher.Constraint("Vertical", 2),
    Sketcher.Constraint("Horizontal", 3),
    Sketcher.Constraint("Horizontal", 6),
    Sketcher.Constraint("Vertical", 7),
    Sketcher.Constraint("Equal", 4, 5),
    Sketcher.Constraint("Equal", 8, 9),
    Sketcher.Constraint("Symmetric", 8, 3, 9, 3, -2),
    Sketcher.Constraint("Symmetric", 3, 2, 5, 2, -2),
    Sketcher.Constraint("Symmetric", 1, 2, 7, 2, -2),
    Sketcher.Constraint("PointOnObject", 0, 2, -2),
    Sketcher.Constraint("Horizontal", 5, 3, 8, 3),
    Sketcher.Constraint("Horizontal", 9, 3, 4, 2),
    Sketcher.Constraint("Radius", 4, Q("0.1 in")),
    Sketcher.Constraint("Diameter", 8, Q("0.085 in")),
    Sketcher.Constraint("DistanceY", 2, 1, 2, 2, Q("0.185 in")),
    Sketcher.Constraint("DistanceX", 1, 2, -1, 1, Q("0.65 in")),
    Sketcher.Constraint("DistanceY", 0, 2, 2, 2, Q("0.28 in")),
    Sketcher.Constraint("DistanceY", 4, 3, -1, 1, Q("3.265 in")),
    Sketcher.Constraint("DistanceY", 0, 2, -1, 1, Q("3.4625 in")),
    Sketcher.Constraint("DistanceX", 8, 3, 9, 3, Q("0.6693 in")),
])
pad3 = body.newObject("PartDesign::Pad", "Pad002")
pad3.Profile = sketch9
pad3.Length = Q("0.182 in")

# Sketch on XZ plane
sketch10 = body.newObject("Sketcher::SketchObject", "Sketch009")
sketch10.AttachmentSupport = (doc.getObject("XZ_Plane"), [""])
sketch10.MapMode = "FlatFace"
sketch10.AttachmentOffset = App.Placement(V(0, 0, -0.182 * 25.4), App.Rotation())
sketch10.addGeometry(Part.Circle(V(0, -82.9, 0), V(0, 0, 1), 2.5), False)
sketch10.addConstraint([
    Sketcher.Constraint("PointOnObject", 0, 3, -2),
    Sketcher.Constraint("Diameter", 0, Q("0.2 in")),
    Sketcher.Constraint("DistanceY", 0, 3, -1, 1, Q("3.265 in")),
])
pocket6 = body.newObject("PartDesign::Pocket", "Pocket005")
pocket6.Profile = sketch10
pocket6.Type = "ThroughAll"
pocket6.Reversed = True
doc.recompute()

fillet4 = body.newObject("PartDesign::Fillet", "Fillet003")
fillet4.Base = (pocket6, edges_at(pocket6, [
    (16.51, 2.311, -80.835),
    (16.51, 2.311, -85.534),
    (0, 2.311, -87.948),
    (-16.51, 2.311, -85.534),
    (-16.51, 2.311, -80.835),
]))
fillet4.Radius = Q("0.08 in")

doc.recompute()
